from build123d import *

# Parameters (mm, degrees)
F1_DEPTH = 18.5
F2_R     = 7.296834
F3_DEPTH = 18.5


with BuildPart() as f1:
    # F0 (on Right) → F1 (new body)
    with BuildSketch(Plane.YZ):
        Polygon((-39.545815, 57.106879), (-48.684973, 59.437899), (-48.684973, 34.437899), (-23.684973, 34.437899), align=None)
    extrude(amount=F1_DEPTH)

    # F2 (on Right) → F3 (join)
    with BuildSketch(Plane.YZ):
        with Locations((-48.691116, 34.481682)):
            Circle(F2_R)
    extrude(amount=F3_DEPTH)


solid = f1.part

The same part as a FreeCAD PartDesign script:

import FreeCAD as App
import Part
import Sketcher
from FreeCAD import Vector
Q = App.Units.Quantity

doc = App.newDocument("Part")
body = doc.addObject("PartDesign::Body", "Body")

# Sketch on YZ plane
sketch1 = doc.addObject("Sketcher::SketchObject", "Sketch")
body.addObject(sketch1)
sketch1.AttachmentSupport = (doc.YZ_Plane, [""])
sketch1.MapMode = "FlatFace"
sketch1.addGeometry([
    Part.LineSegment(Vector(-40, 57, 0), Vector(-49, 59, 0)),
    Part.LineSegment(Vector(-49, 59, 0), Vector(-49, 34, 0)),
    Part.LineSegment(Vector(-49, 34, 0), Vector(-24, 34, 0)),
    Part.LineSegment(Vector(-24, 34, 0), Vector(-40, 57, 0)),
], False)
sketch1.addConstraint([
    Sketcher.Constraint("Coincident", 0, 2, 1, 1),
    Sketcher.Constraint("Coincident", 1, 2, 2, 1),
    Sketcher.Constraint("Coincident", 2, 2, 3, 1),
    Sketcher.Constraint("Coincident", 3, 2, 0, 1),
    Sketcher.Constraint("Vertical", 1),
    Sketcher.Constraint("Horizontal", 2),
    Sketcher.Constraint("Equal", 2, 1),
    Sketcher.Constraint("DistanceX", 2, 1, 2, 2, Q("25 mm")),
    Sketcher.Constraint("DistanceY", -1, 1, 0, 2, Q("59.437899 mm")),
    Sketcher.Constraint("Distance", 3, Q("27.666748 mm")),
    Sketcher.Constraint("DistanceY", -1, 1, 3, 2, Q("57.106879 mm")),
    Sketcher.Constraint("DistanceX", 0, 2, -1, 1, Q("48.684973 mm")),
])
pad1 = doc.addObject("PartDesign::Pad", "Pad")
body.addObject(pad1)
pad1.Profile = sketch1
pad1.Length = 18.5

# Sketch on YZ plane
sketch2 = doc.addObject("Sketcher::SketchObject", "Sketch001")
body.addObject(sketch2)
sketch2.AttachmentSupport = (doc.YZ_Plane, [""])
sketch2.MapMode = "FlatFace"
sketch2.addGeometry(Part.Circle(Vector(-49, 34, 0), Vector(0, 0, 1), 7), False)
sketch2.addConstraint([
    Sketcher.Constraint("Diameter", 0, Q("14.593668 mm")),
    Sketcher.Constraint("DistanceX", 0, 3, -1, 1, Q("48.691116 mm")),
    Sketcher.Constraint("DistanceY", -1, 1, 0, 3, Q("34.481682 mm")),
])
pad2 = doc.addObject("PartDesign::Pad", "Pad001")
body.addObject(pad2)
pad2.Profile = sketch2
pad2.Length = 18.5

doc.recompute()
